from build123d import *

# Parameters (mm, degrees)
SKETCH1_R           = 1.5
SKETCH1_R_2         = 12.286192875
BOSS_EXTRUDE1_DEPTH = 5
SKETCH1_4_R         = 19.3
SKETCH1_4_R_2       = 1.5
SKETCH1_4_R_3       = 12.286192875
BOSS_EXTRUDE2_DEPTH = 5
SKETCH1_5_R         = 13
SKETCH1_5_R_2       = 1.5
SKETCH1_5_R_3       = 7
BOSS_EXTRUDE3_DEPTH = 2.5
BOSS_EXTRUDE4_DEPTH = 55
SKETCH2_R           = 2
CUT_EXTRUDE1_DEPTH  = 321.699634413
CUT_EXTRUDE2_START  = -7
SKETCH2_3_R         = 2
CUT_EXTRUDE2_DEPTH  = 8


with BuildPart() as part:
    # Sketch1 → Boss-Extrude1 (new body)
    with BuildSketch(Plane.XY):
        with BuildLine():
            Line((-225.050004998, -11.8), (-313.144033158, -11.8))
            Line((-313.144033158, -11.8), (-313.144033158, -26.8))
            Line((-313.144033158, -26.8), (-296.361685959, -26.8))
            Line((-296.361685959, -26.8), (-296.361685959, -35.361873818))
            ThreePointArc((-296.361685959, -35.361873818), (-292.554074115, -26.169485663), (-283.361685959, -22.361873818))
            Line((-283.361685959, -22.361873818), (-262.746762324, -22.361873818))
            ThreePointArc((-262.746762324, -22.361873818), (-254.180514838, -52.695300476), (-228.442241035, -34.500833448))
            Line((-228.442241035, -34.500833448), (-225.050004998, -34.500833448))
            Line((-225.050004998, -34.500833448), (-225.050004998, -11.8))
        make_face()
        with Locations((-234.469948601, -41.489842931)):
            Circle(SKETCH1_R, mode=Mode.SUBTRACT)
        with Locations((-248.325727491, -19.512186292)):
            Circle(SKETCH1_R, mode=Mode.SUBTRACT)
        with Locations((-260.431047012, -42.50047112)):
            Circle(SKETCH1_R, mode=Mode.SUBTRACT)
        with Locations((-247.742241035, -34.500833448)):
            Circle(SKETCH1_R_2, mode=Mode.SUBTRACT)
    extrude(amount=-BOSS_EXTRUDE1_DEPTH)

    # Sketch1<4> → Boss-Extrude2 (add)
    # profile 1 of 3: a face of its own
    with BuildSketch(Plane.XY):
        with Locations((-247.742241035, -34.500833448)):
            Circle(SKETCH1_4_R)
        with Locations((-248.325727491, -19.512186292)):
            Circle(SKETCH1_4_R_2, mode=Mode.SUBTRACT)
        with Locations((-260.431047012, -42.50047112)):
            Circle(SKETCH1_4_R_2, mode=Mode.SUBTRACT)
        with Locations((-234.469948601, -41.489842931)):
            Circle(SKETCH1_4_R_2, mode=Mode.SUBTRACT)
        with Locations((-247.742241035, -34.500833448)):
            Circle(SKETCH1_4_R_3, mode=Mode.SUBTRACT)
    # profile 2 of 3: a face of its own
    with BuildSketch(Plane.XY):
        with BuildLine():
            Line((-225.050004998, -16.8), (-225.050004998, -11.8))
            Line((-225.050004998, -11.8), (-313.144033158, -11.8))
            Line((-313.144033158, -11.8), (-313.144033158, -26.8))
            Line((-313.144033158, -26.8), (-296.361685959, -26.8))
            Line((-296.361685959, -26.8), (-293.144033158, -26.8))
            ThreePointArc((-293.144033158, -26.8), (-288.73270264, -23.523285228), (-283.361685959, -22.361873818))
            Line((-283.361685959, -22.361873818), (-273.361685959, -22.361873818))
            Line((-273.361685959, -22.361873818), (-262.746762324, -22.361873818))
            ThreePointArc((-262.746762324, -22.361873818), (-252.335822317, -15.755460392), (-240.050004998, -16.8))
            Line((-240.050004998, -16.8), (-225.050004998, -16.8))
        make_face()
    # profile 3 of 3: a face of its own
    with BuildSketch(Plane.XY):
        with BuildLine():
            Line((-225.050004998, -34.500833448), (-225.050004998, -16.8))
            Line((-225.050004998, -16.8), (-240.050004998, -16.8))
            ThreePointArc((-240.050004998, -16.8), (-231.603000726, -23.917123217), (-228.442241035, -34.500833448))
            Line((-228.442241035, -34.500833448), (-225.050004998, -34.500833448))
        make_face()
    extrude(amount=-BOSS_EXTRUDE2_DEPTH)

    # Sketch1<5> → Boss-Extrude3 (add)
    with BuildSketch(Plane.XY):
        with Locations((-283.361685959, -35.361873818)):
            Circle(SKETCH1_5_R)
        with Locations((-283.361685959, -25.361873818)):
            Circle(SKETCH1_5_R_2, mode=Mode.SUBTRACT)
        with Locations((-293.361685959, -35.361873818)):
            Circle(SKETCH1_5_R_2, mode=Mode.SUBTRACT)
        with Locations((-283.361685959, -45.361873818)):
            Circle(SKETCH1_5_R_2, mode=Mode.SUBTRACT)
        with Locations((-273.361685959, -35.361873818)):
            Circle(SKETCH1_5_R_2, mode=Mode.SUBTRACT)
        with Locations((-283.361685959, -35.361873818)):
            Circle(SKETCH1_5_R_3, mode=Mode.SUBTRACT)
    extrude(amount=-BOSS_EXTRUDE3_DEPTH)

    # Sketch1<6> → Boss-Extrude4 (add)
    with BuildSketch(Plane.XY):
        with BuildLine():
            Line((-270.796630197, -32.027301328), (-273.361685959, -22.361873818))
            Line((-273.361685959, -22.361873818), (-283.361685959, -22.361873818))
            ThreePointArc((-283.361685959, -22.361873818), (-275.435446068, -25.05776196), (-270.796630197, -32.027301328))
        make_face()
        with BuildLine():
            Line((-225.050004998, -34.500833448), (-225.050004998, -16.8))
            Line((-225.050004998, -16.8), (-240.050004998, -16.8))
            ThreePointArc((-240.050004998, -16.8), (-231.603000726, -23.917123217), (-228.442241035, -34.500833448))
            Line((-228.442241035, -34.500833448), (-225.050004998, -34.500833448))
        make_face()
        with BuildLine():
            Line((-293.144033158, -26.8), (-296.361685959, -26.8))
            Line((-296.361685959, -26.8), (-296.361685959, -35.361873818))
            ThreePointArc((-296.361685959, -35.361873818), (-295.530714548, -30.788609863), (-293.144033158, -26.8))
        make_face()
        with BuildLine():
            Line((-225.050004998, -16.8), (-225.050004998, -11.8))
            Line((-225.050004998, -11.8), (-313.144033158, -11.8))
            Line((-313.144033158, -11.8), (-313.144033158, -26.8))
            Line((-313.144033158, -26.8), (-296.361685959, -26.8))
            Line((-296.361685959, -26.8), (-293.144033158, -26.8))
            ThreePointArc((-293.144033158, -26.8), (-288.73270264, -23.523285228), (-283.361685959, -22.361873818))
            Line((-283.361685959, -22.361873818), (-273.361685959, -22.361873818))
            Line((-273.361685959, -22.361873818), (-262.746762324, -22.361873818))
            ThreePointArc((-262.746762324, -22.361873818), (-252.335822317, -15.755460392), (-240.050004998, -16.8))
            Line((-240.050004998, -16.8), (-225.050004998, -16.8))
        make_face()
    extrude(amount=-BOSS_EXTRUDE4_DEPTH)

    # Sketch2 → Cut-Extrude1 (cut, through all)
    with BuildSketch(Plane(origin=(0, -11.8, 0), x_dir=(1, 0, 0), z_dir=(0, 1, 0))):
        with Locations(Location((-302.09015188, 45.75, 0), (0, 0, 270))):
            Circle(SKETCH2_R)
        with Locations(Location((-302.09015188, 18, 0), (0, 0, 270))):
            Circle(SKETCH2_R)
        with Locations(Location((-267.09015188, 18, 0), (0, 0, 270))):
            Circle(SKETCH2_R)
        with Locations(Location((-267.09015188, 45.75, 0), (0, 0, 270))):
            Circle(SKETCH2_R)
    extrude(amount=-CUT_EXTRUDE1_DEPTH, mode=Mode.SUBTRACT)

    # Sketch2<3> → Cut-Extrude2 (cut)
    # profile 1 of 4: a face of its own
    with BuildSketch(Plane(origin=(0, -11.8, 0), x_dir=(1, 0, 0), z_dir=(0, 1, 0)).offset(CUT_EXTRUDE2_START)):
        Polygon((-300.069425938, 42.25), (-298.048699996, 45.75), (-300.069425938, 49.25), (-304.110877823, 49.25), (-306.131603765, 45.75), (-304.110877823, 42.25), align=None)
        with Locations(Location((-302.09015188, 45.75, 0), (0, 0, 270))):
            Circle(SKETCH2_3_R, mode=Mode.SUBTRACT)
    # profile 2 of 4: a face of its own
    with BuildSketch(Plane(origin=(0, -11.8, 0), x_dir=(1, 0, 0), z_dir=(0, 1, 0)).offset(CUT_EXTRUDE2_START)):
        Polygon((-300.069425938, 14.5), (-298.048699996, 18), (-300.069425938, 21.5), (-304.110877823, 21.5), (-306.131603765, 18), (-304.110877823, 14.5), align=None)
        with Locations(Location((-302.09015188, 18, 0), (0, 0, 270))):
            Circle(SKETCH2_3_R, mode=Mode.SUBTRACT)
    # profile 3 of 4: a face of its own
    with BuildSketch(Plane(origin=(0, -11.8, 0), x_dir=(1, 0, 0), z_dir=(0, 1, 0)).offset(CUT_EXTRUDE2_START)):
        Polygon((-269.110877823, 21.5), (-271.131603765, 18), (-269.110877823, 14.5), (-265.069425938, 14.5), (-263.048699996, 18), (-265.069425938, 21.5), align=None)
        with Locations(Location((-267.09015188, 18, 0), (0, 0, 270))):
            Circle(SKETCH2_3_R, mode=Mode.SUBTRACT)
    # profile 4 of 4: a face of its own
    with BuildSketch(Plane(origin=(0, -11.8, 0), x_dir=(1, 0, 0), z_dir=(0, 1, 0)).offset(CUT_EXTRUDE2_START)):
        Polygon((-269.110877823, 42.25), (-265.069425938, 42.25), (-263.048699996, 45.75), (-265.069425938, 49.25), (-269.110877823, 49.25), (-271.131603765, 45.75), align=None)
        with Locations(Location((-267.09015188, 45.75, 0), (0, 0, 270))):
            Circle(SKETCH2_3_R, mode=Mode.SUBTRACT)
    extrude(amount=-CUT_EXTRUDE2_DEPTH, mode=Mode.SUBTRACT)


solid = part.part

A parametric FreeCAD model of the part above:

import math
import FreeCAD as App
import Part
import Sketcher
Q = App.Units.Quantity

doc = App.newDocument("Part")
params = doc.addObject("Spreadsheet::Sheet", "Params")
for row, (alias, value) in enumerate([
    ("sketch1_diameter", "3 mm"),
    ("sketch1_radius", "13 mm"),
    ("sketch1_radius2", "19.3 mm"),
    ("sketch1_height", "15 mm"),
    ("pad1_length", "5 mm"),
    ("sketch2_diameter", "3 mm"),
    ("sketch2_radius", "13 mm"),
    ("sketch2_radius2", "19.3 mm"),
    ("sketch2_width", "20 mm"),
    ("sketch2_height", "15 mm"),
    ("pad2_length", "5 mm"),
    ("sketch3_diameter", "26 mm"),
    ("sketch3_diameter2", "3 mm"),
    ("sketch3_diameter3", "14 mm"),
    ("pad3_length", "2.5 mm"),
    ("sketch4_radius", "13 mm"),
    ("sketch4_radius2", "19.3 mm"),
    ("sketch4_height", "15 mm"),
    ("sketch4_length", "10 mm"),
    ("pad4_length", "55 mm"),
    ("sketch5_diameter", "4 mm"),
    ("sketch6_diameter", "4 mm"),
    ("pocket2_length", "8 mm"),
], start=1):
    params.set(f"A{row}", alias)
    params.set(f"B{row}", "=" + value)
    params.setAlias(f"B{row}", alias)

body = doc.addObject("PartDesign::Body", "Body")

sketch1 = doc.addObject("Sketcher::SketchObject", "Sketch")
body.addObject(sketch1)
sketch1.AttachmentSupport = (doc.XY_Plane, [""])
sketch1.MapMode = "FlatFace"
sketch1.addGeometry([
    Part.LineSegment(App.Vector(-225.1, -11.8, 0), App.Vector(-313.1, -11.8, 0)),
    Part.LineSegment(App.Vector(-313.1, -11.8, 0), App.Vector(-313.1, -26.8, 0)),
    Part.LineSegment(App.Vector(-313.1, -26.8, 0), App.Vector(-296.4, -26.8, 0)),
    Part.LineSegment(App.Vector(-296.4, -26.8, 0), App.Vector(-296.4, -35.4, 0)),
    Part.ArcOfCircle(Part.Circle(App.Vector(-283.4, -35.4, 0), App.Vector(0, 0, 1), 13), math.radians(90), math.radians(180)),
    Part.LineSegment(App.Vector(-283.4, -22.4, 0), App.Vector(-262.7, -22.4, 0)),
    Part.ArcOfCircle(Part.Circle(App.Vector(-247.7, -34.5, 0), App.Vector(0, 0, 1), 19.3), math.radians(141), math.radians(360)),
    Part.LineSegment(App.Vector(-228.4, -34.5, 0), App.Vector(-225.1, -34.5, 0)),
    Part.LineSegment(App.Vector(-225.1, -34.5, 0), App.Vector(-225.1, -11.8, 0)),
    Part.Circle(App.Vector(-260.4, -42.5, 0), App.Vector(0, 0, 1), 1.5),
    Part.Circle(App.Vector(-247.7, -34.5, 0), App.Vector(0, 0, 1), 12.3),
    Part.Circle(App.Vector(-234.5, -41.5, 0), App.Vector(0, 0, 1), 1.5),
    Part.Circle(App.Vector(-248.3, -19.5, 0), App.Vector(0, 0, 1), 1.5),
], False)
sketch1.addConstraint([
    Sketcher.Constraint("Coincident", 0, 2, 1, 1),
    Sketcher.Constraint("Coincident", 1, 2, 2, 1),
    Sketcher.Constraint("Coincident", 2, 2, 3, 1),
    Sketcher.Constraint("Tangent", 3, 2, 4, 2),
    Sketcher.Constraint("Tangent", 4, 1, 5, 1),
    Sketcher.Constraint("Coincident", 5, 2, 6, 1),
    Sketcher.Constraint("Coincident", 6, 2, 7, 1),
    Sketcher.Constraint("Coincident", 7, 2, 8, 1),
    Sketcher.Constraint("Coincident", 8, 2, 0, 1),
    Sketcher.Constraint("Horizontal", 0),
    Sketcher.Constraint("Vertical", 1),
    Sketcher.Constraint("Horizontal", 2),
    Sketcher.Constraint("Vertical", 3),
    Sketcher.Constraint("Horizontal", 5),
    Sketcher.Constraint("Horizontal", 7),
    Sketcher.Constraint("Vertical", 8),
    Sketcher.Constraint("Coincident", 10, 3, 6, 3),
    Sketcher.Constraint("Equal", 9, 11),
    Sketcher.Constraint("Equal", 11, 12),
    Sketcher.Constraint("Horizontal", 10, 3, 6, 2),
    Sketcher.Constraint("Diameter", 9, Q("3 mm")),
    Sketcher.Constraint("Radius", 4, Q("13 mm")),
    Sketcher.Constraint("Radius", 6, Q("19.3 mm")),
    Sketcher.Constraint("DistanceY", 1, 2, 1, 1, Q("15 mm")),
    Sketcher.Constraint("DistanceY", 0, 2, -1, 1, Q("11.8 mm")),
    Sketcher.Constraint("Diameter", 10, Q("24.572386 mm")),
    Sketcher.Constraint("DistanceX", 0, 2, 0, 1, Q("88.094028 mm")),
    Sketcher.Constraint("DistanceX", 9, 3, 11, 3, Q("25.961098 mm")),
    Sketcher.Constraint("DistanceX", 2, 1, 2, 2, Q("16.782347 mm")),
    Sketcher.Constraint("DistanceX", 5, 1, 5, 2, Q("20.614924 mm")),
    Sketcher.Constraint("DistanceX", 7, 1, 7, 2, Q("3.392236 mm")),
    Sketcher.Constraint("DistanceY", 3, 2, 3, 1, Q("8.561874 mm")),
    Sketcher.Constraint("DistanceX", 6, 3, -1, 1, Q("247.742241 mm")),
    Sketcher.Constraint("DistanceY", 9, 3, -1, 1, Q("42.500471 mm")),
    Sketcher.Constraint("DistanceX", 11, 3, -1, 1, Q("234.469949 mm")),
    Sketcher.Constraint("DistanceY", 11, 3, 6, 3, Q("6.989009 mm")),
    Sketcher.Constraint("DistanceX", 12, 3, 11, 3, Q("13.855779 mm")),
    Sketcher.Constraint("DistanceY", 12, 3, -1, 1, Q("19.512186 mm")),
])
sketch1.setExpression("Constraints[20]", "Params.sketch1_diameter")
sketch1.setExpression("Constraints[21]", "Params.sketch1_radius")
sketch1.setExpression("Constraints[22]", "Params.sketch1_radius2")
sketch1.setExpression("Constraints[23]", "Params.sketch1_height")
pad1 = doc.addObject("PartDesign::Pad", "Pad")
body.addObject(pad1)
pad1.Profile = sketch1
pad1.setExpression("Length", "Params.pad1_length")
pad1.Reversed = True

sketch2 = doc.addObject("Sketcher::SketchObject", "Sketch001")
body.addObject(sketch2)
sketch2.AttachmentSupport = (doc.XY_Plane, [""])
sketch2.MapMode = "FlatFace"
sketch2.addGeometry([
    Part.ArcOfCircle(Part.Circle(App.Vector(-247.7, -34.5, 0), App.Vector(0, 0, 1), 19.3), math.radians(141), math.radians(360)),
    Part.LineSegment(App.Vector(-228.4, -34.5, 0), App.Vector(-225.1, -34.5, 0)),
    Part.LineSegment(App.Vector(-225.1, -34.5, 0), App.Vector(-225.1, -11.8, 0)),
    Part.LineSegment(App.Vector(-225.1, -11.8, 0), App.Vector(-313.1, -11.8, 0)),
    Part.LineSegment(App.Vector(-313.1, -11.8, 0), App.Vector(-313.1, -26.8, 0)),
    Part.LineSegment(App.Vector(-313.1, -26.8, 0), App.Vector(-293.1, -26.8, 0)),
    Part.ArcOfCircle(Part.Circle(App.Vector(-283.4, -35.4, 0), App.Vector(0, 0, 1), 13), math.radians(90), math.radians(139)),
    Part.LineSegment(App.Vector(-283.4, -22.4, 0), App.Vector(-262.7, -22.4, 0)),
    Part.Circle(App.Vector(-260.4, -42.5, 0), App.Vector(0, 0, 1), 1.5),
    Part.Circle(App.Vector(-247.7, -34.5, 0), App.Vector(0, 0, 1), 12.3),
    Part.Circle(App.Vector(-234.5, -41.5, 0), App.Vector(0, 0, 1), 1.5),
    Part.Circle(App.Vector(-248.3, -19.5, 0), App.Vector(0, 0, 1), 1.5),
], False)
sketch2.addConstraint([
    Sketcher.Constraint("Coincident", 0, 2, 1, 1),
    Sketcher.Constraint("Coincident", 1, 2, 2, 1),
    Sketcher.Constraint("Coincident", 2, 2, 3, 1),
    Sketcher.Constraint("Coincident", 3, 2, 4, 1),
    Sketcher.Constraint("Coincident", 4, 2, 5, 1),
    Sketcher.Constraint("Coincident", 5, 2, 6, 2),
    Sketcher.Constraint("Tangent", 6, 1, 7, 1),
    Sketcher.Constraint("Coincident", 7, 2, 0, 1),
    Sketcher.Constraint("Horizontal", 1),
    Sketcher.Constraint("Vertical", 2),
    Sketcher.Constraint("Horizontal", 3),
    Sketcher.Constraint("Vertical", 4),
    Sketcher.Constraint("Horizontal", 5),
    Sketcher.Constraint("Horizontal", 7),
    Sketcher.Constraint("Coincident", 9, 3, 0, 3),
    Sketcher.Constraint("Equal", 8, 10),
    Sketcher.Constraint("Equal", 10, 11),
    Sketcher.Constraint("Horizontal", 9, 3, 0, 2),
    Sketcher.Constraint("Diameter", 8, Q("3 mm")),
    Sketcher.Constraint("Radius", 6, Q("13 mm")),
    Sketcher.Constraint("Radius", 0, Q("19.3 mm")),
    Sketcher.Constraint("DistanceX", 5, 1, 5, 2, Q("20 mm")),
    Sketcher.Constraint("DistanceY", 4, 2, 4, 1, Q("15 mm")),
    Sketcher.Constraint("DistanceY", 2, 2, -1, 1, Q("11.8 mm")),
    Sketcher.Constraint("Diameter", 9, Q("24.572386 mm")),
    Sketcher.Constraint("DistanceX", 3, 2, 3, 1, Q("88.094028 mm")),
    Sketcher.Constraint("DistanceX", 8, 3, 10, 3, Q("25.961098 mm")),
    Sketcher.Constraint("DistanceX", 1, 1, 1, 2, Q("3.392236 mm")),
    Sketcher.Constraint("DistanceX", 7, 1, 7, 2, Q("20.614924 mm")),
    Sketcher.Constraint("DistanceY", 2, 1, 2, 2, Q("22.700833 mm")),
    Sketcher.Constraint("DistanceX", 0, 3, -1, 1, Q("247.742241 mm")),
    Sketcher.Constraint("DistanceY", 8, 3, -1, 1, Q("42.500471 mm")),
    Sketcher.Constraint("DistanceX", 10, 3, -1, 1, Q("234.469949 mm")),
    Sketcher.Constraint("DistanceY", 10, 3, 0, 3, Q("6.989009 mm")),
    Sketcher.Constraint("DistanceX", 11, 3, 10, 3, Q("13.855779 mm")),
    Sketcher.Constraint("DistanceY", 11, 3, -1, 1, Q("19.512186 mm")),
])
sketch2.setExpression("Constraints[18]", "Params.sketch2_diameter")
sketch2.setExpression("Constraints[19]", "Params.sketch2_radius")
sketch2.setExpression("Constraints[20]", "Params.sketch2_radius2")
sketch2.setExpression("Constraints[21]", "Params.sketch2_width")
sketch2.setExpression("Constraints[22]", "Params.sketch2_height")
pad2 = doc.addObject("PartDesign::Pad", "Pad001")
body.addObject(pad2)
pad2.Profile = sketch2
pad2.setExpression("Length", "Params.pad2_length")
pad2.Reversed = True

sketch3 = doc.addObject("Sketcher::SketchObject", "Sketch002")
body.addObject(sketch3)
sketch3.AttachmentSupport = (doc.XY_Plane, [""])
sketch3.MapMode = "FlatFace"
sketch3.addGeometry([
    Part.Circle(App.Vector(-283.4, -35.4, 0), App.Vector(0, 0, 1), 13),
    Part.Circle(App.Vector(-283.4, -45.4, 0), App.Vector(0, 0, 1), 1.5),
    Part.Circle(App.Vector(-293.4, -35.4, 0), App.Vector(0, 0, 1), 1.5),
    Part.Circle(App.Vector(-283.4, -35.4, 0), App.Vector(0, 0, 1), 7),
    Part.Circle(App.Vector(-273.4, -35.4, 0), App.Vector(0, 0, 1), 1.5),
    Part.Circle(App.Vector(-283.4, -25.4, 0), App.Vector(0, 0, 1), 1.5),
], False)
sketch3.addConstraint([
    Sketcher.Constraint("Coincident", 3, 3, 0, 3),
    Sketcher.Constraint("Equal", 1, 2),
    Sketcher.Constraint("Equal", 2, 4),
    Sketcher.Constraint("Equal", 4, 5),
    Sketcher.Constraint("Horizontal", 0, 3, 2, 3),
    Sketcher.Constraint("Horizontal", 3, 3, 4, 3),
    Sketcher.Constraint("Vertical", 0, 3, 1, 3),
    Sketcher.Constraint("Vertical", 3, 3, 5, 3),
    Sketcher.Constraint("Diameter", 0, Q("26 mm")),
    Sketcher.Constraint("Diameter", 1, Q("3 mm")),
    Sketcher.Constraint("Diameter", 3, Q("14 mm")),
    Sketcher.Constraint("DistanceY", 1, 3, 0, 3, Q("10 mm")),
    Sketcher.Constraint("DistanceX", 2, 3, 0, 3, Q("10 mm")),
    Sketcher.Constraint("DistanceX", 0, 3, 4, 3, Q("10 mm")),
    Sketcher.Constraint("DistanceY", 0, 3, 5, 3, Q("10 mm")),
    Sketcher.Constraint("DistanceX", 0, 3, -1, 1, Q("283.361686 mm")),
    Sketcher.Constraint("DistanceY", 0, 3, -1, 1, Q("35.361874 mm")),
])
sketch3.setExpression("Constraints[8]", "Params.sketch3_diameter")
sketch3.setExpression("Constraints[9]", "Params.sketch3_diameter2")
sketch3.setExpression("Constraints[10]", "Params.sketch3_diameter3")
pad3 = doc.addObject("PartDesign::Pad", "Pad002")
body.addObject(pad3)
pad3.Profile = sketch3
pad3.setExpression("Length", "Params.pad3_length")
pad3.Reversed = True

sketch4 = doc.addObject("Sketcher::SketchObject", "Sketch003")
body.addObject(sketch4)
sketch4.AttachmentSupport = (doc.XY_Plane, [""])
sketch4.MapMode = "FlatFace"
sketch4.addGeometry([
    Part.LineSegment(App.Vector(-270.8, -32, 0), App.Vector(-273.4, -22.4, 0)),
    Part.LineSegment(App.Vector(-273.4, -22.4, 0), App.Vector(-262.7, -22.4, 0)),
    Part.ArcOfCircle(Part.Circle(App.Vector(-247.7, -34.5, 0), App.Vector(0, 0, 1), 19.3), math.radians(67), math.radians(141)),
    Part.ArcOfCircle(Part.Circle(App.Vector(-247.7, -34.5, 0), App.Vector(0, 0, 1), 19.3), math.radians(0), math.radians(67)),
    Part.LineSegment(App.Vector(-228.4, -34.5, 0), App.Vector(-225.1, -34.5, 0)),
    Part.LineSegment(App.Vector(-225.1, -34.5, 0), App.Vector(-225.1, -11.8, 0)),
    Part.LineSegment(App.Vector(-225.1, -11.8, 0), App.Vector(-313.1, -11.8, 0)),
    Part.LineSegment(App.Vector(-313.1, -11.8, 0), App.Vector(-313.1, -26.8, 0)),
    Part.LineSegment(App.Vector(-313.1, -26.8, 0), App.Vector(-296.4, -26.8, 0)),
    Part.LineSegment(App.Vector(-296.4, -26.8, 0), App.Vector(-296.4, -35.4, 0)),
    Part.ArcOfCircle(Part.Circle(App.Vector(-283.4, -35.4, 0), App.Vector(0, 0, 1), 13), math.radians(139), math.radians(180)),
    Part.ArcOfCircle(Part.Circle(App.Vector(-283.4, -35.4, 0), App.Vector(0, 0, 1), 13), math.radians(90), math.radians(139)),
    Part.ArcOfCircle(Part.Circle(App.Vector(-283.4, -35.4, 0), App.Vector(0, 0, 1), 13), math.radians(15), math.radians(90)),
], False)
sketch4.addConstraint([
    Sketcher.Constraint("Coincident", 0, 2, 1, 1),
    Sketcher.Constraint("Coincident", 1, 2, 2, 2),
    Sketcher.Constraint("Tangent", 2, 1, 3, 2),
    Sketcher.Constraint("Coincident", 3, 1, 4, 1),
    Sketcher.Constraint("Coincident", 4, 2, 5, 1),
    Sketcher.Constraint("Coincident", 5, 2, 6, 1),
    Sketcher.Constraint("Coincident", 6, 2, 7, 1),
    Sketcher.Constraint("Coincident", 7, 2, 8, 1),
    Sketcher.Constraint("Coincident", 8, 2, 9, 1),
    Sketcher.Constraint("Tangent", 9, 2, 10, 2),
    Sketcher.Constraint("Tangent", 10, 1, 11, 2),
    Sketcher.Constraint("Tangent", 11, 1, 12, 2),
    Sketcher.Constraint("Tangent", 12, 1, 0, 1),
    Sketcher.Constraint("Horizontal", 1),
    Sketcher.Constraint("Horizontal", 4),
    Sketcher.Constraint("Vertical", 5),
    Sketcher.Constraint("Horizontal", 6),
    Sketcher.Constraint("Vertical", 7),
    Sketcher.Constraint("Horizontal", 8),
    Sketcher.Constraint("Vertical", 9),
    Sketcher.Constraint("Coincident", 12, 3, 10, 3),
    Sketcher.Constraint("Equal", 2, 3),
    Sketcher.Constraint("Horizontal", 2, 3, 3, 1),
    Sketcher.Constraint("Horizontal", 8, 2, 10, 1),
    Sketcher.Constraint("Horizontal", 1, 2, 11, 1),
    Sketcher.Constraint("Vertical", 12, 3, 11, 1),
    Sketcher.Constraint("Radius", 10, Q("13 mm")),
    Sketcher.Constraint("Radius", 2, Q("19.3 mm")),
    Sketcher.Constraint("DistanceY", 7, 2, 7, 1, Q("15 mm")),
    Sketcher.Constraint("Distance", 0, Q("10 mm")),
    Sketcher.Constraint("DistanceX", 2, 1, 4, 2, Q("15 mm")),
    Sketcher.Constraint("DistanceY", 2, 1, 5, 2, Q("5 mm")),
    Sketcher.Constraint("DistanceY", 2, 1, -1, 1, Q("16.8 mm")),
    Sketcher.Constraint("DistanceX", 6, 2, 6, 1, Q("88.094028 mm")),
    Sketcher.Constraint("DistanceY", 12, 1, -1, 1, Q("32.027301 mm")),
    Sketcher.Constraint("DistanceX", 1, 1, 1, 2, Q("10.614924 mm")),
    Sketcher.Constraint("DistanceX", 4, 1, 4, 2, Q("3.392236 mm")),
    Sketcher.Constraint("DistanceX", 2, 3, -1, 1, Q("247.742241 mm")),
])
sketch4.setExpression("Constraints[26]", "Params.sketch4_radius")
sketch4.setExpression("Constraints[27]", "Params.sketch4_radius2")
sketch4.setExpression("Constraints[28]", "Params.sketch4_height")
sketch4.setExpression("Constraints[29]", "Params.sketch4_length")
pad4 = doc.addObject("PartDesign::Pad", "Pad003")
body.addObject(pad4)
pad4.Profile = sketch4
pad4.setExpression("Length", "Params.pad4_length")
pad4.Reversed = True

sketch5 = doc.addObject("Sketcher::SketchObject", "Sketch004")
body.addObject(sketch5)
sketch5.AttachmentSupport = (doc.XZ_Plane, [""])
sketch5.MapMode = "FlatFace"
sketch5.AttachmentOffset = App.Placement(App.Vector(0, 0, 11.8), App.Rotation())
sketch5.addGeometry([
    Part.Circle(App.Vector(-302.1, -45.8, 0), App.Vector(0, 0, 1), 2),
    Part.Circle(App.Vector(-302.1, -18, 0), App.Vector(0, 0, 1), 2),
    Part.Circle(App.Vector(-267.1, -18, 0), App.Vector(0, 0, 1), 2),
    Part.Circle(App.Vector(-267.1, -45.8, 0), App.Vector(0, 0, 1), 2),
], False)
sketch5.addConstraint([
    Sketcher.Constraint("Equal", 0, 1),
    Sketcher.Constraint("Equal", 1, 2),
    Sketcher.Constraint("Equal", 2, 3),
    Sketcher.Constraint("Horizontal", 1, 3, 2, 3),
    Sketcher.Constraint("Horizontal", 0, 3, 3, 3),
    Sketcher.Constraint("Vertical", 0, 3, 1, 3),
    Sketcher.Constraint("Vertical", 2, 3, 3, 3),
    Sketcher.Constraint("Diameter", 0, Q("4 mm")),
    Sketcher.Constraint("DistanceY", 1, 3, -1, 1, Q("18 mm")),
    Sketcher.Constraint("DistanceX", 1, 3, 2, 3, Q("35 mm")),
    Sketcher.Constraint("DistanceY", 0, 3, -1, 1, Q("45.75 mm")),
    Sketcher.Constraint("DistanceX", 0, 3, -1, 1, Q("302.090152 mm")),
])
sketch5.setExpression("Constraints[7]", "Params.sketch5_diameter")
pocket1 = doc.addObject("PartDesign::Pocket", "Pocket")
body.addObject(pocket1)
pocket1.Profile = sketch5
pocket1.Type = "ThroughAll"
pocket1.Reversed = True

sketch6 = doc.addObject("Sketcher::SketchObject", "Sketch005")
body.addObject(sketch6)
sketch6.AttachmentSupport = (doc.XZ_Plane, [""])
sketch6.MapMode = "FlatFace"
sketch6.AttachmentOffset = App.Placement(App.Vector(0, 0, 18.8), App.Rotation())
sketch6.addGeometry([
    Part.LineSegment(App.Vector(-300.1, -42.2, 0), App.Vector(-298, -45.8, 0)),
    Part.LineSegment(App.Vector(-298, -45.8, 0), App.Vector(-300.1, -49.2, 0)),
    Part.LineSegment(App.Vector(-300.1, -49.2, 0), App.Vector(-304.1, -49.2, 0)),
    Part.LineSegment(App.Vector(-304.1, -49.2, 0), App.Vector(-306.1, -45.8, 0)),
    Part.LineSegment(App.Vector(-306.1, -45.8, 0), App.Vector(-304.1, -42.2, 0)),
    Part.LineSegment(App.Vector(-304.1, -42.2, 0), App.Vector(-300.1, -42.2, 0)),
    Part.Circle(App.Vector(-302.1, -45.8, 0), App.Vector(0, 0, 1), 2),
    Part.LineSegment(App.Vector(-300.1, -14.5, 0), App.Vector(-298, -18, 0)),
    Part.LineSegment(App.Vector(-298, -18, 0), App.Vector(-300.1, -21.5, 0)),
    Part.LineSegment(App.Vector(-300.1, -21.5, 0), App.Vector(-304.1, -21.5, 0)),
    Part.LineSegment(App.Vector(-304.1, -21.5, 0), App.Vector(-306.1, -18, 0)),
    Part.LineSegment(App.Vector(-306.1, -18, 0), App.Vector(-304.1, -14.5, 0)),
    Part.LineSegment(App.Vector(-304.1, -14.5, 0), App.Vector(-300.1, -14.5, 0)),
    Part.Circle(App.Vector(-302.1, -18, 0), App.Vector(0, 0, 1), 2),
    Part.LineSegment(App.Vector(-269.1, -21.5, 0), App.Vector(-271.1, -18, 0)),
    Part.LineSegment(App.Vector(-271.1, -18, 0), App.Vector(-269.1, -14.5, 0)),
    Part.LineSegment(App.Vector(-269.1, -14.5, 0), App.Vector(-265.1, -14.5, 0)),
    Part.LineSegment(App.Vector(-265.1, -14.5, 0), App.Vector(-263, -18, 0)),
    Part.LineSegment(App.Vector(-263, -18, 0), App.Vector(-265.1, -21.5, 0)),
    Part.LineSegment(App.Vector(-265.1, -21.5, 0), App.Vector(-269.1, -21.5, 0)),
    Part.Circle(App.Vector(-267.1, -18, 0), App.Vector(0, 0, 1), 2),
    Part.LineSegment(App.Vector(-269.1, -42.2, 0), App.Vector(-265.1, -42.2, 0)),
    Part.LineSegment(App.Vector(-265.1, -42.2, 0), App.Vector(-263, -45.8, 0)),
    Part.LineSegment(App.Vector(-263, -45.8, 0), App.Vector(-265.1, -49.2, 0)),
    Part.LineSegment(App.Vector(-265.1, -49.2, 0), App.Vector(-269.1, -49.2, 0)),
    Part.LineSegment(App.Vector(-269.1, -49.2, 0), App.Vector(-271.1, -45.8, 0)),
    Part.LineSegment(App.Vector(-271.1, -45.8, 0), App.Vector(-269.1, -42.2, 0)),
    Part.Circle(App.Vector(-267.1, -45.8, 0), App.Vector(0, 0, 1), 2),
], False)
sketch6.addConstraint([
    Sketcher.Constraint("Coincident", 0, 2, 1, 1),
    Sketcher.Constraint("Coincident", 1, 2, 2, 1),
    Sketcher.Constraint("Coincident", 2, 2, 3, 1),
    Sketcher.Constraint("Coincident", 3, 2, 4, 1),
    Sketcher.Constraint("Coincident", 4, 2, 5, 1),
    Sketcher.Constraint("Coincident", 5, 2, 0, 1),
    Sketcher.Constraint("Coincident", 7, 2, 8, 1),
    Sketcher.Constraint("Coincident", 8, 2, 9, 1),
    Sketcher.Constraint("Coincident", 9, 2, 10, 1),
    Sketcher.Constraint("Coincident", 10, 2, 11, 1),
    Sketcher.Constraint("Coincident", 11, 2, 12, 1),
    Sketcher.Constraint("Coincident", 12, 2, 7, 1),
    Sketcher.Constraint("Coincident", 14, 2, 15, 1),
    Sketcher.Constraint("Coincident", 15, 2, 16, 1),
    Sketcher.Constraint("Coincident", 16, 2, 17, 1),
    Sketcher.Constraint("Coincident", 17, 2, 18, 1),
    Sketcher.Constraint("Coincident", 18, 2, 19, 1),
    Sketcher.Constraint("Coincident", 19, 2, 14, 1),
    Sketcher.Constraint("Coincident", 21, 2, 22, 1),
    Sketcher.Constraint("Coincident", 22, 2, 23, 1),
    Sketcher.Constraint("Coincident", 23, 2, 24, 1),
    Sketcher.Constraint("Coincident", 24, 2, 25, 1),
    Sketcher.Constraint("Coincident", 25, 2, 26, 1),
    Sketcher.Constraint("Coincident", 26, 2, 21, 1),
    Sketcher.Constraint("Horizontal", 2),
    Sketcher.Constraint("Horizontal", 5),
    Sketcher.Constraint("Horizontal", 9),
    Sketcher.Constraint("Horizontal", 12),
    Sketcher.Constraint("Horizontal", 16),
    Sketcher.Constraint("Horizontal", 19),
    Sketcher.Constraint("Horizontal", 21),
    Sketcher.Constraint("Horizontal", 24),
    Sketcher.Constraint("Equal", 6, 13),
    Sketcher.Constraint("Equal", 13, 20),
    Sketcher.Constraint("Equal", 20, 27),
    Sketcher.Constraint("Parallel", 0, 3),
    Sketcher.Constraint("Parallel", 1, 4),
    Sketcher.Constraint("Parallel", 3, 7),
    Sketcher.Constraint("Parallel", 4, 8),
    Sketcher.Constraint("Parallel", 7, 10),
    Sketcher.Constraint("Parallel", 8, 11),
    Sketcher.Constraint("Parallel", 10, 14),
    Sketcher.Constraint("Parallel", 11, 15),
    Sketcher.Constraint("Parallel", 14, 17),
    Sketcher.Constraint("Parallel", 15, 18),
    Sketcher.Constraint("Parallel", 17, 22),
    Sketcher.Constraint("Parallel", 18, 23),
    Sketcher.Constraint("Parallel", 22, 25),
    Sketcher.Constraint("Parallel", 23, 26),
    Sketcher.Constraint("Horizontal", 13, 3, 20, 3),
    Sketcher.Constraint("Horizontal", 6, 3, 27, 3),
    Sketcher.Constraint("Horizontal", 27, 3, 0, 2),
    Sketcher.Constraint("Horizontal", 0, 2, 3, 2),
    Sketcher.Constraint("Horizontal", 20, 3, 7, 2),
    Sketcher.Constraint("Horizontal", 7, 2, 10, 2),
    Sketcher.Constraint("Horizontal", 10, 2, 14, 2),
    Sketcher.Constraint("Horizontal", 12, 2, 15, 2),
    Sketcher.Constraint("Horizontal", 14, 2, 17, 2),
    Sketcher.Constraint("Horizontal", 9, 2, 18, 2),
    Sketcher.Constraint("Horizontal", 5, 2, 21, 2),
    Sketcher.Constraint("Horizontal", 3, 2, 22, 2),
    Sketcher.Constraint("Horizontal", 2, 2, 23, 2),
    Sketcher.Constraint("Horizontal", 22, 2, 25, 2),
    Sketcher.Constraint("Vertical", 6, 3, 13, 3),
    Sketcher.Constraint("Vertical", 20, 3, 27, 3),
    Sketcher.Constraint("Vertical", 2, 2, 4, 2),
    Sketcher.Constraint("Vertical", 1, 2, 5, 2),
    Sketcher.Constraint("Vertical", 0, 2, 7, 2),
    Sketcher.Constraint("Vertical", 5, 2, 8, 2),
    Sketcher.Constraint("Vertical", 4, 2, 9, 2),
    Sketcher.Constraint("Vertical", 9, 2, 11, 2),
    Sketcher.Constraint("Vertical", 18, 2, 21, 2),
    Sketcher.Constraint("Vertical", 19, 2, 24, 2),
    Sketcher.Constraint("Equal", 12, 16),
    Sketcher.Constraint("Diameter", 6, Q("4 mm")),
    Sketcher.Constraint("Angle", 0, Q("-60 deg")),
    Sketcher.Constraint("DistanceY", 13, 3, -1, 1, Q("18 mm")),
    Sketcher.Constraint("DistanceX", 13, 3, 20, 3, Q("35 mm")),
    Sketcher.Constraint("DistanceY", 2, 2, 4, 2, Q("7 mm")),
    Sketcher.Constraint("DistanceY", 6, 3, -1, 1, Q("45.75 mm")),
    Sketcher.Constraint("DistanceX", 2, 2, 2, 1, Q("4.041452 mm")),
    Sketcher.Constraint("DistanceX", 0, 2, -1, 1, Q("298.0487 mm")),
    Sketcher.Constraint("DistanceX", 17, 2, -1, 1, Q("263.0487 mm")),
    Sketcher.Constraint("DistanceX", 6, 3, -1, 1, Q("302.090152 mm")),
])
sketch6.setExpression("Constraints[74]", "Params.sketch6_diameter")
pocket2 = doc.addObject("PartDesign::Pocket", "Pocket001")
body.addObject(pocket2)
pocket2.Profile = sketch6
pocket2.setExpression("Length", "Params.pocket2_length")
pocket2.Reversed = True

doc.recompute()
